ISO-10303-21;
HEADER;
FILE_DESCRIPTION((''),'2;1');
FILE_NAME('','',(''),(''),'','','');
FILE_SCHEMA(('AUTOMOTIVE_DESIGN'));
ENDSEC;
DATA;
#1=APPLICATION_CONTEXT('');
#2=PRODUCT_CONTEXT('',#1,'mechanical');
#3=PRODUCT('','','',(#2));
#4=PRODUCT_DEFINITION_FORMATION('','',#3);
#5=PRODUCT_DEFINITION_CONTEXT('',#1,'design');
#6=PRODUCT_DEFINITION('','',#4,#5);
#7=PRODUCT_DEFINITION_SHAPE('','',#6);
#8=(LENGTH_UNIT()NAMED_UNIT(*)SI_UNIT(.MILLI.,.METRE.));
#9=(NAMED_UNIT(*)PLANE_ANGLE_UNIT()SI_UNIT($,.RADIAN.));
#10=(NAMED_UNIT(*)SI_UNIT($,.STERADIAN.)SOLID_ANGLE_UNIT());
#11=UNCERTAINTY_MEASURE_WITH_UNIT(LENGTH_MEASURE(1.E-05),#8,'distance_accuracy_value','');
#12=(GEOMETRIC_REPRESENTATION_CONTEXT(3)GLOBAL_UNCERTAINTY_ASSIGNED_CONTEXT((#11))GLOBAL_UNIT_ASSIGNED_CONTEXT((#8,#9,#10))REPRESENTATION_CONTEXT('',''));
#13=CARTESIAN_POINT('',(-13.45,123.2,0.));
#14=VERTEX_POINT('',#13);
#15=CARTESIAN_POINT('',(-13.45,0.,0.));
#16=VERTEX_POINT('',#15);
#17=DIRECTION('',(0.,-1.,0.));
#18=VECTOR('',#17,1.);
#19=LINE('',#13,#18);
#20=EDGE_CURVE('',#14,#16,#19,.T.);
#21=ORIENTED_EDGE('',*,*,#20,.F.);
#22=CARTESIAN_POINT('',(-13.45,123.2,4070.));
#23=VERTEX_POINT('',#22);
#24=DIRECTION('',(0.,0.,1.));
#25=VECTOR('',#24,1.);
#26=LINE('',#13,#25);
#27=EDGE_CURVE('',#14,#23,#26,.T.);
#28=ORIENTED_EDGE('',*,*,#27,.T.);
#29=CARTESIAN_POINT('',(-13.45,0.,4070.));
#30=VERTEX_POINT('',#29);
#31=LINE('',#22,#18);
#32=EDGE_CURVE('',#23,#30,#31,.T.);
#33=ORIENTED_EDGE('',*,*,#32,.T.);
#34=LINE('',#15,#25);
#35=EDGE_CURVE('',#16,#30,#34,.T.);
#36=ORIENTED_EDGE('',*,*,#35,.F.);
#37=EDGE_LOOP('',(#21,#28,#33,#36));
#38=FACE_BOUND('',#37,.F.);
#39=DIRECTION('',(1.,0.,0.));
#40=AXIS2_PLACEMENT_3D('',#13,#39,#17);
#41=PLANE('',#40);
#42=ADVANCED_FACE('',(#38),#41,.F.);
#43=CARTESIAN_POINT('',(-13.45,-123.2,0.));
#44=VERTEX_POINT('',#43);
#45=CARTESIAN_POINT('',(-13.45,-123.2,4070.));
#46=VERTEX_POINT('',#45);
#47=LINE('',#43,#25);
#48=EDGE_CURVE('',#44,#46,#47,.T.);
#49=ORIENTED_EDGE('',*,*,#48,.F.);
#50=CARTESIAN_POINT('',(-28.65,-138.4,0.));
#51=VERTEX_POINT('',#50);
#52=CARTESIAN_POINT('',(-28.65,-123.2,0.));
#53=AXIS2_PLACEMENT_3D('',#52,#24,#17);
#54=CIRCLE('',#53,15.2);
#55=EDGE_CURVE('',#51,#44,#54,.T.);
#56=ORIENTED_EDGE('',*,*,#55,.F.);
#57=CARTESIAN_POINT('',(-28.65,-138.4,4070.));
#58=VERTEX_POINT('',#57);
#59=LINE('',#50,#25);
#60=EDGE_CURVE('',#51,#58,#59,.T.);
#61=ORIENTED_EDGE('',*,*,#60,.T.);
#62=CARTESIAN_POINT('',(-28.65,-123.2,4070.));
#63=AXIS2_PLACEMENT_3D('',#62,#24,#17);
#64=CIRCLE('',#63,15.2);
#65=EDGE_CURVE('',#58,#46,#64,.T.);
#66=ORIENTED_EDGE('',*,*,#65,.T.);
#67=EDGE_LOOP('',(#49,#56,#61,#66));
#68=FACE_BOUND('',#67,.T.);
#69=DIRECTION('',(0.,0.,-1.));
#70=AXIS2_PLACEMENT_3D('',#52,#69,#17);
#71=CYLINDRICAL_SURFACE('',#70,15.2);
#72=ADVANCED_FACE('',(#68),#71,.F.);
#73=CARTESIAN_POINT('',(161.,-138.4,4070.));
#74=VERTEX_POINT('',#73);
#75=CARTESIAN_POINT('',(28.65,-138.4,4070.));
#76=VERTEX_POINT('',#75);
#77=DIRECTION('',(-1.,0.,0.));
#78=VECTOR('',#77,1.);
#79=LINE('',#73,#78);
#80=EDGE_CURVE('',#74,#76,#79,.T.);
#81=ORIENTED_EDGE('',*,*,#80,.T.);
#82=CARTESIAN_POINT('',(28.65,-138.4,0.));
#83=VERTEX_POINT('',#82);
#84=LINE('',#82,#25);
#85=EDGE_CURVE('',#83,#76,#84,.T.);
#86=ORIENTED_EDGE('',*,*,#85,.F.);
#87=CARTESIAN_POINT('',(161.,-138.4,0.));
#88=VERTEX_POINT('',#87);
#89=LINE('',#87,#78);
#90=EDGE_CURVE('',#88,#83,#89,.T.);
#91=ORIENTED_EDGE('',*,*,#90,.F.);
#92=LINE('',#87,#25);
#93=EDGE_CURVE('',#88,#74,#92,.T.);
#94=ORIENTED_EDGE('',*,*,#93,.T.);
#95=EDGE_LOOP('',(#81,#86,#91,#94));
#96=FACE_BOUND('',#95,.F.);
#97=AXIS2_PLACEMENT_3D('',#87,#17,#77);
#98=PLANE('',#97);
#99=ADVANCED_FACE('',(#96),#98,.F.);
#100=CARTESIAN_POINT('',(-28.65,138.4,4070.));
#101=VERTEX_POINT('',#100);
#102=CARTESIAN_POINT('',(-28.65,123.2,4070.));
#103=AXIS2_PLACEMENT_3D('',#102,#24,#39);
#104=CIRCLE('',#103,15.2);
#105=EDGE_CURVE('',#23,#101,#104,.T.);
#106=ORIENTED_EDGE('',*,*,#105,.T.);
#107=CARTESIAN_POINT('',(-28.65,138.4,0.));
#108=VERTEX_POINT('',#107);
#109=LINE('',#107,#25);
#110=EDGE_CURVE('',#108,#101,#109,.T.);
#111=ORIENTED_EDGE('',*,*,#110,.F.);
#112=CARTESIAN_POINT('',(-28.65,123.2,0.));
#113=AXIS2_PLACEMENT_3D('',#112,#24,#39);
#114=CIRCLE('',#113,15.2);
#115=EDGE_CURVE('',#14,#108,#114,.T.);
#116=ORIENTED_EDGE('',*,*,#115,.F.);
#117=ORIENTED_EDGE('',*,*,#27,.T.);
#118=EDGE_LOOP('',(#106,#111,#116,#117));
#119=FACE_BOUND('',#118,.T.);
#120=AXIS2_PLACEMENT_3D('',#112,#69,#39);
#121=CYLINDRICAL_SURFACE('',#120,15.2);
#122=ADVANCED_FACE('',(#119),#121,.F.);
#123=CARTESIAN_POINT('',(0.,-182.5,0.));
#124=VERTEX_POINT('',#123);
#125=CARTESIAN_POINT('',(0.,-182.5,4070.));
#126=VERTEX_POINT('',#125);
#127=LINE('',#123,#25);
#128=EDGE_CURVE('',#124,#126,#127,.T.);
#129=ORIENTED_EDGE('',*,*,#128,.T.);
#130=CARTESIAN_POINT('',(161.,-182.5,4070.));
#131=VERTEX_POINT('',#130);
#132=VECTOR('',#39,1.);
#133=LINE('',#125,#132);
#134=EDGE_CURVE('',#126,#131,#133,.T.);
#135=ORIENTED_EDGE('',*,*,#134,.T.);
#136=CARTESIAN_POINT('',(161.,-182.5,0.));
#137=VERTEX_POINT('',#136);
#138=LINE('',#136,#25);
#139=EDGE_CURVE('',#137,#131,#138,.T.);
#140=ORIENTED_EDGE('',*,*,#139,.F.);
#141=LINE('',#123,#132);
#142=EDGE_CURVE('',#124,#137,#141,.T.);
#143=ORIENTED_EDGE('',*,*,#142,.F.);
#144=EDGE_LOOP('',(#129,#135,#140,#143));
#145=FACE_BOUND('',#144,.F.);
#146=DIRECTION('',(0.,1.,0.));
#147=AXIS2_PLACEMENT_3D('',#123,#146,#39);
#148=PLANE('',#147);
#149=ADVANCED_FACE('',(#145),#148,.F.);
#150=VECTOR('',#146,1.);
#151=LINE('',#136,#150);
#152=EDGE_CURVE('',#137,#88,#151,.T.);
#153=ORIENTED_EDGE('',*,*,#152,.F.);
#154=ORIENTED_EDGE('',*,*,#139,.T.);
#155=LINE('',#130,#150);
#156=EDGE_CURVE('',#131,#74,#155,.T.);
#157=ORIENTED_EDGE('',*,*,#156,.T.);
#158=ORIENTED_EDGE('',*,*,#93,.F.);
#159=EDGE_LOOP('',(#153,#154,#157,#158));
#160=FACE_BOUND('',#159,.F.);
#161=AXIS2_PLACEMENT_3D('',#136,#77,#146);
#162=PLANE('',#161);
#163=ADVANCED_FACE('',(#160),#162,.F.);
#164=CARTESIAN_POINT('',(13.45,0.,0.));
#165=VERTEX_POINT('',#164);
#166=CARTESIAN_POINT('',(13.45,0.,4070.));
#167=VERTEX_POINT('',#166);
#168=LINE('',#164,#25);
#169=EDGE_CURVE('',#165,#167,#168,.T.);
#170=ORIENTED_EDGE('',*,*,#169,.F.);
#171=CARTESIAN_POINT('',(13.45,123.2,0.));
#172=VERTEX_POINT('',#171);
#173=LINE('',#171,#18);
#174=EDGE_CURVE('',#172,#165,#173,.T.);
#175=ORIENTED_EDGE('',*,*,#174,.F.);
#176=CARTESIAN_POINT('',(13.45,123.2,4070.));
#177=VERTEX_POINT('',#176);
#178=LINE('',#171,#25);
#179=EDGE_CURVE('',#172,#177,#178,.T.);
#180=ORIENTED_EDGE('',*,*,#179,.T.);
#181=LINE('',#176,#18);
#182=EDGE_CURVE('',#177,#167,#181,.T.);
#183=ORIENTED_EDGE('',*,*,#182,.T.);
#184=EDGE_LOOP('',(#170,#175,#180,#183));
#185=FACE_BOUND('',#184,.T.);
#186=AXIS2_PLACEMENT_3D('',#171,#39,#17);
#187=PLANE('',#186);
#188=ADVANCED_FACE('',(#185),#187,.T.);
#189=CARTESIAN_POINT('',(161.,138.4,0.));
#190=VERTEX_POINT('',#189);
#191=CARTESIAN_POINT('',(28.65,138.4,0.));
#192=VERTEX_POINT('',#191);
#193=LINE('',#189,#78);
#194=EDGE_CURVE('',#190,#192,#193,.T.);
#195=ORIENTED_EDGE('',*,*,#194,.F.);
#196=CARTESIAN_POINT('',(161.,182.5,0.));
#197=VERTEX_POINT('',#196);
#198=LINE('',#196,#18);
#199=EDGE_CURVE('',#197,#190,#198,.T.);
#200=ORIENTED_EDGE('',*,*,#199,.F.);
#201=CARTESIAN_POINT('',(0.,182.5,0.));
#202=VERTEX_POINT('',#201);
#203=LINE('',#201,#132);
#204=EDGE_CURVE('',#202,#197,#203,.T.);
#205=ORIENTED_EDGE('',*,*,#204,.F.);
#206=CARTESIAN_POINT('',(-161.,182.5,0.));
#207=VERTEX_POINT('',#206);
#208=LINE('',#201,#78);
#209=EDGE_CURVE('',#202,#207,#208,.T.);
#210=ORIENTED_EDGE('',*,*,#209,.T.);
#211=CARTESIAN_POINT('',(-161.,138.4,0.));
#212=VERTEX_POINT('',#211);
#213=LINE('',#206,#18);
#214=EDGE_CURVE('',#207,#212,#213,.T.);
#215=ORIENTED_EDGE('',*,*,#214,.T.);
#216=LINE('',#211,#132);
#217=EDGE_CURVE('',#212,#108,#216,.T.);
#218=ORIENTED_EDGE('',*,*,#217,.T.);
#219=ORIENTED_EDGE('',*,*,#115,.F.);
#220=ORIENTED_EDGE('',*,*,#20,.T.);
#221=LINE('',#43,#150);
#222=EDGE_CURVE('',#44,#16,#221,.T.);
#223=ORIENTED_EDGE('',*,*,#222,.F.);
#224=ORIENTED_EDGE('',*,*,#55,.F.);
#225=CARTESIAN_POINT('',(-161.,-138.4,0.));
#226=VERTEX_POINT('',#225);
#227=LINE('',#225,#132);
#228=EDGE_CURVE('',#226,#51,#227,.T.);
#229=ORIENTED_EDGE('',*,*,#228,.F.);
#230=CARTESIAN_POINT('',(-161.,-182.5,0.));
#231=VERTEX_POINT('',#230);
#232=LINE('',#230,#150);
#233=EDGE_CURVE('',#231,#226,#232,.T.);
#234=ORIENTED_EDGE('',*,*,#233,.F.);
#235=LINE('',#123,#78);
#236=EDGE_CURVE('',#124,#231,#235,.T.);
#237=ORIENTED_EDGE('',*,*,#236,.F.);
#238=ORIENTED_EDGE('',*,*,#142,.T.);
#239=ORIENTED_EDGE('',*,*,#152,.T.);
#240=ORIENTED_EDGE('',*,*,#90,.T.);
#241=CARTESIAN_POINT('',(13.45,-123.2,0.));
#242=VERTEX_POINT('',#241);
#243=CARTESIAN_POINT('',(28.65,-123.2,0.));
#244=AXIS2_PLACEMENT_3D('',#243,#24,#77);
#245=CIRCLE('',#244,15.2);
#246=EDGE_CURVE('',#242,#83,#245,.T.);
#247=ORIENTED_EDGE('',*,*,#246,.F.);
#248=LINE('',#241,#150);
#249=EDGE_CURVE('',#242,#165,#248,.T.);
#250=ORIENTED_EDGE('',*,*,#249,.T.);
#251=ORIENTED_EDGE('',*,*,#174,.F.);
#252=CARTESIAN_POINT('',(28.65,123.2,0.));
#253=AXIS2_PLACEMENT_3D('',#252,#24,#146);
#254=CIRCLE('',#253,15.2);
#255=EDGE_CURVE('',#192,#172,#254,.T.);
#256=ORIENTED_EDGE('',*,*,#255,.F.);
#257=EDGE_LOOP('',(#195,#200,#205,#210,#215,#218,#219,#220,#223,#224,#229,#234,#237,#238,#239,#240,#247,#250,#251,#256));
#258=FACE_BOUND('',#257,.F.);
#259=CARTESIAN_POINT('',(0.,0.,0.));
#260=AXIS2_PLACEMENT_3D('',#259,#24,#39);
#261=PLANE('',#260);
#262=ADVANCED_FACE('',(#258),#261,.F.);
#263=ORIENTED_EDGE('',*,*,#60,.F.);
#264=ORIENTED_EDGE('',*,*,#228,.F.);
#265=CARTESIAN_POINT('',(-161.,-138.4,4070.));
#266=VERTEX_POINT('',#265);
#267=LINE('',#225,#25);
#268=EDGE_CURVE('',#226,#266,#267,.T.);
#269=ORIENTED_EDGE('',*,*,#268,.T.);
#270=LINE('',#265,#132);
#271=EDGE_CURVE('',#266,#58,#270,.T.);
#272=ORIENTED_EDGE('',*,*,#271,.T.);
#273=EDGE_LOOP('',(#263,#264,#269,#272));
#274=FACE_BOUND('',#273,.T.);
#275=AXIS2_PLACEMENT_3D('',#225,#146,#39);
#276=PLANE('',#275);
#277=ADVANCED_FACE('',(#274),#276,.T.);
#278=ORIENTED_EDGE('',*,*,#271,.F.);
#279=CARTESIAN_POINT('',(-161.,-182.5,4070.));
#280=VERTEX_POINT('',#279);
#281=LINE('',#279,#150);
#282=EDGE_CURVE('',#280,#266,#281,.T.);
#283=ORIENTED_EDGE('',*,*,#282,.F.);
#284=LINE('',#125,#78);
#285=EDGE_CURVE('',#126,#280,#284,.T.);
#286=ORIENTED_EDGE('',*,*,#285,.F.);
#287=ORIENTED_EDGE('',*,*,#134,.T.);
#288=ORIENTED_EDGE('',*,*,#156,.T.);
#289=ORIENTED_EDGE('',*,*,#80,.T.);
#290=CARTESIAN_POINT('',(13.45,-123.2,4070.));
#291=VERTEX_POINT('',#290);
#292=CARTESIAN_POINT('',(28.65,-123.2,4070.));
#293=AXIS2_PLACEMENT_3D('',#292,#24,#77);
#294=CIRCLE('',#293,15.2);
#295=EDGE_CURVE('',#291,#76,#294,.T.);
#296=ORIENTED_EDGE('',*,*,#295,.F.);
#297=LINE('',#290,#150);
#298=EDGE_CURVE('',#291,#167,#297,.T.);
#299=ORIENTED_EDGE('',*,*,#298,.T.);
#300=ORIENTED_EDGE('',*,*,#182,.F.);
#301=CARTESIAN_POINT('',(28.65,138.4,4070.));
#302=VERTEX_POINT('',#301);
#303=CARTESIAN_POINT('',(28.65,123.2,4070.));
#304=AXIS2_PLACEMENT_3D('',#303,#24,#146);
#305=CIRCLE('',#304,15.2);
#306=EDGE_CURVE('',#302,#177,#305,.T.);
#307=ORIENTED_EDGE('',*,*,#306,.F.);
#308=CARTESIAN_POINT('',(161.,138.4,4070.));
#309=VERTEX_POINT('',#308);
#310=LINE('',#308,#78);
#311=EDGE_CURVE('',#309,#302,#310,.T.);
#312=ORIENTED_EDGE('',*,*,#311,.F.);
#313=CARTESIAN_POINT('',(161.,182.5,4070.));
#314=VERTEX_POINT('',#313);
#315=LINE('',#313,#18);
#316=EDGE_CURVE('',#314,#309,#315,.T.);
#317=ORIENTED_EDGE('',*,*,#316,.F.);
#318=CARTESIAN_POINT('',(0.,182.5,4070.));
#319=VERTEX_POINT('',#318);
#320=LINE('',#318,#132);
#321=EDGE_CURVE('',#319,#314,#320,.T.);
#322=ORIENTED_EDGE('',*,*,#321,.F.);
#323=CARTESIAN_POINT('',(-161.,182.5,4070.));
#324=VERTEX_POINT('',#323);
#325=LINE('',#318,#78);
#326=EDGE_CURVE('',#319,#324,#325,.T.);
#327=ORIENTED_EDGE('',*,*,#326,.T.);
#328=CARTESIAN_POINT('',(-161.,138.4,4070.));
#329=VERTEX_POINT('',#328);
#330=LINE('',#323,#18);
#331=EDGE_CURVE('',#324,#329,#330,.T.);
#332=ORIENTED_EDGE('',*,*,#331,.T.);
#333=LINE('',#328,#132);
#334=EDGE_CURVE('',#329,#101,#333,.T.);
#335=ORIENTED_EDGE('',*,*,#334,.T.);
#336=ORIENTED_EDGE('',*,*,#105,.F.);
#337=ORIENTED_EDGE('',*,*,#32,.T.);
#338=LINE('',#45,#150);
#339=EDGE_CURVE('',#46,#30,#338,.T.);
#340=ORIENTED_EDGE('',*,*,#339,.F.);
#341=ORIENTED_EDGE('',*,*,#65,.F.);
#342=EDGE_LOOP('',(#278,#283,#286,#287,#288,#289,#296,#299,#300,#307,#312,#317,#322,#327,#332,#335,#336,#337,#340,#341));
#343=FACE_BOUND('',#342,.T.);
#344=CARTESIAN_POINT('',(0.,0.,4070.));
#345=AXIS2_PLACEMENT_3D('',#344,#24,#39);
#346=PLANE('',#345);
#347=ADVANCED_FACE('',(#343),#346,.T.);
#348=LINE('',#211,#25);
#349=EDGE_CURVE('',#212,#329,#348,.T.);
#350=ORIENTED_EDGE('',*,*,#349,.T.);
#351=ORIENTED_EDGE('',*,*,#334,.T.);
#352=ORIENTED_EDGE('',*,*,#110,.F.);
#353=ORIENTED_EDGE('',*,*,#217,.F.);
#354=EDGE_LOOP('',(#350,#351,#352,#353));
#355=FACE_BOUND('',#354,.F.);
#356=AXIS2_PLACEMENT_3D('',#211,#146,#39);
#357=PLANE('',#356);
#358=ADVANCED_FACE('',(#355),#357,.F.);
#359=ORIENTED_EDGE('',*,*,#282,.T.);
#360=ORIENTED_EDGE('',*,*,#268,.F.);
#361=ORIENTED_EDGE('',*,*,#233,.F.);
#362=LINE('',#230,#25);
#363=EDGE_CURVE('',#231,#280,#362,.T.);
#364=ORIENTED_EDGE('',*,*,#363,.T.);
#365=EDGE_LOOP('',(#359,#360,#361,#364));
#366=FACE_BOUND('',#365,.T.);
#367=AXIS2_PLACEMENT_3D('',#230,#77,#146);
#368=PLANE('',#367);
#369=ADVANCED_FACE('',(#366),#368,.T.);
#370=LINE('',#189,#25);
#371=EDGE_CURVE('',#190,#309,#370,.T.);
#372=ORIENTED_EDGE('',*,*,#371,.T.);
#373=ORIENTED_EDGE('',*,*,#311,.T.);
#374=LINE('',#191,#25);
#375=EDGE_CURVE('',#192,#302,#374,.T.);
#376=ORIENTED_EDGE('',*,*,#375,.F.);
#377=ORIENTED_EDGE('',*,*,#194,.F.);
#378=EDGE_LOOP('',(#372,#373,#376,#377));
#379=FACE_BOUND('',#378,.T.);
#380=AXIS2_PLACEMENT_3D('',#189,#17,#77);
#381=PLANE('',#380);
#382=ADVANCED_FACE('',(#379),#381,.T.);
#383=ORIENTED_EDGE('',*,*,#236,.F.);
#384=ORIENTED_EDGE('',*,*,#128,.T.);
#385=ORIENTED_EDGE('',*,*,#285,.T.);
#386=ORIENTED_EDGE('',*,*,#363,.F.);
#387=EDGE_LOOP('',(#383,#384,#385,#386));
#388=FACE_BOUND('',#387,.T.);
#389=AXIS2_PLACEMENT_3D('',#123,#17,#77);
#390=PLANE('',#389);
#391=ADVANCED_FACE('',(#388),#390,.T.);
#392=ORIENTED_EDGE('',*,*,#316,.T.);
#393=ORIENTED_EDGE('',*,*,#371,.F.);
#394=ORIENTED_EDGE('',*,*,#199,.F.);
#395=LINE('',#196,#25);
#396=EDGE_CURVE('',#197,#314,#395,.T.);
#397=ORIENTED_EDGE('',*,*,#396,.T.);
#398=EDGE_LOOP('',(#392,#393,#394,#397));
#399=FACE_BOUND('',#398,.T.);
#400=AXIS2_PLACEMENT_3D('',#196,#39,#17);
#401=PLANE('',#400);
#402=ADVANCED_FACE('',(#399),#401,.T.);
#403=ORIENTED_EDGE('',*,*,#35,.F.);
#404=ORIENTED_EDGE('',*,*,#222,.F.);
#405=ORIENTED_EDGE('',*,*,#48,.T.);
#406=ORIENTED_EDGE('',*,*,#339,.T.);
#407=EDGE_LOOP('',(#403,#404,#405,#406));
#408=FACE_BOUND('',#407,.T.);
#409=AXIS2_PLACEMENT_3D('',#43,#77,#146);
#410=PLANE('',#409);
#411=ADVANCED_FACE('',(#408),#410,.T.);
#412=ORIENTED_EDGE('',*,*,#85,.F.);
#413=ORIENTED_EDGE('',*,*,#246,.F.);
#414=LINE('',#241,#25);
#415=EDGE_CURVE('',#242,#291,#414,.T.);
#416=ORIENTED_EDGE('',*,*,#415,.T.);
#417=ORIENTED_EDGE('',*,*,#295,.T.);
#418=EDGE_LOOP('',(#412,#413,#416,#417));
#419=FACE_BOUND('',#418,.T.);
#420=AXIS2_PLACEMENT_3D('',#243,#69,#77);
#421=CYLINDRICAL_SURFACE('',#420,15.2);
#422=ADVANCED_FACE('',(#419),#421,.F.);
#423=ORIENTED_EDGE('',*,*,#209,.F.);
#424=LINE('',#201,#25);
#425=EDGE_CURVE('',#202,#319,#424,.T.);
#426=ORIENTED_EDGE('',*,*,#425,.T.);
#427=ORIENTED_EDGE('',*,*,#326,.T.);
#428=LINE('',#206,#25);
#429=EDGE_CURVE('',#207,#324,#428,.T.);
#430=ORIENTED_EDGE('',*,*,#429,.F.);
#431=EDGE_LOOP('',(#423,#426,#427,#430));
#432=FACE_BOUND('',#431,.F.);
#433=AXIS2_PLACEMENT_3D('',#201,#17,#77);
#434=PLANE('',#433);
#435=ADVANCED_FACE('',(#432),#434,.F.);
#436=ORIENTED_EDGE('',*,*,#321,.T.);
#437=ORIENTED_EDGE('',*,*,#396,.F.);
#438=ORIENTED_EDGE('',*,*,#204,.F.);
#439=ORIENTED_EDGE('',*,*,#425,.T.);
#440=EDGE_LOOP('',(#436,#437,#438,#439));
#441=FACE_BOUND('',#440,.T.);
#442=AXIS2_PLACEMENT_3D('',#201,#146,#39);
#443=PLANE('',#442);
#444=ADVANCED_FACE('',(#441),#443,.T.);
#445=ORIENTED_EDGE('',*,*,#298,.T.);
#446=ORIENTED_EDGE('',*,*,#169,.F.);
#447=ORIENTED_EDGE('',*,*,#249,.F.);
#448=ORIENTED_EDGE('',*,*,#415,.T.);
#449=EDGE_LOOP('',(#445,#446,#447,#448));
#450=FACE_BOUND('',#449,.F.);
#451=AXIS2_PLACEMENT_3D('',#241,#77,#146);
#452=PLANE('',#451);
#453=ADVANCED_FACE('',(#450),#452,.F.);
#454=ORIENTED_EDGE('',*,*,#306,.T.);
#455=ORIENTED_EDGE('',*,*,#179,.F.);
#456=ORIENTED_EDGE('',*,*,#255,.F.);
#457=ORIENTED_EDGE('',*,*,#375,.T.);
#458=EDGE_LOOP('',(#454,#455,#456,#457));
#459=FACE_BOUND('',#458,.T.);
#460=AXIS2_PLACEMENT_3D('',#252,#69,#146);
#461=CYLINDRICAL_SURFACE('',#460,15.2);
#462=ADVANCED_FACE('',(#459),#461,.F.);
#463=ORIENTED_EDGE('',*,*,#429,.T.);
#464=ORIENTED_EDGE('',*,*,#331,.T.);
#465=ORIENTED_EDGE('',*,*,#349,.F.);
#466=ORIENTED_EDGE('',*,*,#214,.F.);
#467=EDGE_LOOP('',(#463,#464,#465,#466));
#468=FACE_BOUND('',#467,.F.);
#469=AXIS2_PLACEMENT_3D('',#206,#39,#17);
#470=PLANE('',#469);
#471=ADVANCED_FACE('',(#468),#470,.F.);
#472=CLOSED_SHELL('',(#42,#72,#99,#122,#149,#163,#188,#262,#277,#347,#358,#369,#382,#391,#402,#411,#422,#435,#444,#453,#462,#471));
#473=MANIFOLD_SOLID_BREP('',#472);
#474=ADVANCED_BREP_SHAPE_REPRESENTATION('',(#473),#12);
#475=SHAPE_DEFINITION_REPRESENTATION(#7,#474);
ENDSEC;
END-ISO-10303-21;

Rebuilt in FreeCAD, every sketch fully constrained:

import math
import FreeCAD as App
import Part
import Sketcher
Q = App.Units.Quantity

doc = App.newDocument("Part")
body = doc.addObject("PartDesign::Body", "Body")

# Sketch on XY plane
sketch1 = body.newObject("Sketcher::SketchObject", "Sketch")
sketch1.AttachmentSupport = (doc.getObject("XY_Plane"), [""])
sketch1.MapMode = "FlatFace"
sketch1.addGeometry([
    Part.LineSegment(App.Vector(-161, -138, 0), App.Vector(-161, -182, 0)),  # 0
    Part.LineSegment(App.Vector(-161, -182, 0), App.Vector(161, -182, 0)),  # 1
    Part.LineSegment(App.Vector(161, -182, 0), App.Vector(161, -138, 0)),  # 2
    Part.LineSegment(App.Vector(161, -138, 0), App.Vector(29, -138, 0)),  # 3
    Part.ArcOfCircle(Part.Circle(App.Vector(29, -123, 0), App.Vector(0, 0, 1), 15), math.radians(180), math.radians(270)),  # 4
    Part.LineSegment(App.Vector(13, -123, 0), App.Vector(13, 123, 0)),  # 5
    Part.ArcOfCircle(Part.Circle(App.Vector(29, 123, 0), App.Vector(0, 0, 1), 15), math.radians(90), math.radians(180)),  # 6
    Part.LineSegment(App.Vector(29, 138, 0), App.Vector(161, 138, 0)),  # 7
    Part.LineSegment(App.Vector(161, 138, 0), App.Vector(161, 182, 0)),  # 8
    Part.LineSegment(App.Vector(161, 182, 0), App.Vector(-161, 182, 0)),  # 9
    Part.LineSegment(App.Vector(-161, 182, 0), App.Vector(-161, 138, 0)),  # 10
    Part.LineSegment(App.Vector(-161, 138, 0), App.Vector(-29, 138, 0)),  # 11
    Part.ArcOfCircle(Part.Circle(App.Vector(-29, 123, 0), App.Vector(0, 0, 1), 15), math.radians(0), math.radians(90)),  # 12
    Part.LineSegment(App.Vector(-13, 123, 0), App.Vector(-13, -123, 0)),  # 13
    Part.ArcOfCircle(Part.Circle(App.Vector(-29, -123, 0), App.Vector(0, 0, 1), 15), math.radians(-90), math.radians(0)),  # 14
    Part.LineSegment(App.Vector(-29, -138, 0), App.Vector(-161, -138, 0)),  # 15
], False)
sketch1.addConstraint([
    Sketcher.Constraint("Coincident", 0, 2, 1, 1),
    Sketcher.Constraint("Coincident", 1, 2, 2, 1),
    Sketcher.Constraint("Coincident", 2, 2, 3, 1),
    Sketcher.Constraint("Tangent", 3, 2, 4, 2),
    Sketcher.Constraint("Tangent", 4, 1, 5, 1),
    Sketcher.Constraint("Tangent", 5, 2, 6, 2),
    Sketcher.Constraint("Tangent", 6, 1, 7, 1),
    Sketcher.Constraint("Coincident", 7, 2, 8, 1),
    Sketcher.Constraint("Coincident", 8, 2, 9, 1),
    Sketcher.Constraint("Coincident", 9, 2, 10, 1),
    Sketcher.Constraint("Coincident", 10, 2, 11, 1),
    Sketcher.Constraint("Tangent", 11, 2, 12, 2),
    Sketcher.Constraint("Tangent", 12, 1, 13, 1),
    Sketcher.Constraint("Tangent", 13, 2, 14, 2),
    Sketcher.Constraint("Tangent", 14, 1, 15, 1),
    Sketcher.Constraint("Coincident", 15, 2, 0, 1),
    Sketcher.Constraint("Vertical", 0),
    Sketcher.Constraint("Horizontal", 1),
    Sketcher.Constraint("Vertical", 2),
    Sketcher.Constraint("Horizontal", 3),
    Sketcher.Constraint("Vertical", 5),
    Sketcher.Constraint("Horizontal", 7),
    Sketcher.Constraint("Vertical", 8),
    Sketcher.Constraint("Horizontal", 9),
    Sketcher.Constraint("Vertical", 10),
    Sketcher.Constraint("Horizontal", 11),
    Sketcher.Constraint("Vertical", 13),
    Sketcher.Constraint("Horizontal", 15),
    Sketcher.Constraint("Equal", 4, 6),
    Sketcher.Constraint("Equal", 6, 12),
    Sketcher.Constraint("Equal", 12, 14),
    Sketcher.Constraint("Symmetric", 4, 3, 12, 3, -1, 1),
    Sketcher.Constraint("Symmetric", 0, 2, 8, 2, -1, 1),
    Sketcher.Constraint("Symmetric", 7, 2, 10, 2, -2),
    Sketcher.Constraint("Symmetric", 2, 2, 15, 2, -2),
    Sketcher.Constraint("Radius", 4, Q("15.2 mm")),
    Sketcher.Constraint("DistanceY", 0, 2, 0, 1, Q("44.1 mm")),
    Sketcher.Constraint("DistanceX", 0, 2, -1, 1, Q("161 mm")),
    Sketcher.Constraint("DistanceY", 0, 2, -1, 1, Q("182.5 mm")),
    Sketcher.Constraint("DistanceX", -1, 1, 4, 1, Q("13.45 mm")),
])
pad1 = body.newObject("PartDesign::Pad", "Pad")
pad1.Profile = sketch1
pad1.Length = 4070

doc.recompute()
